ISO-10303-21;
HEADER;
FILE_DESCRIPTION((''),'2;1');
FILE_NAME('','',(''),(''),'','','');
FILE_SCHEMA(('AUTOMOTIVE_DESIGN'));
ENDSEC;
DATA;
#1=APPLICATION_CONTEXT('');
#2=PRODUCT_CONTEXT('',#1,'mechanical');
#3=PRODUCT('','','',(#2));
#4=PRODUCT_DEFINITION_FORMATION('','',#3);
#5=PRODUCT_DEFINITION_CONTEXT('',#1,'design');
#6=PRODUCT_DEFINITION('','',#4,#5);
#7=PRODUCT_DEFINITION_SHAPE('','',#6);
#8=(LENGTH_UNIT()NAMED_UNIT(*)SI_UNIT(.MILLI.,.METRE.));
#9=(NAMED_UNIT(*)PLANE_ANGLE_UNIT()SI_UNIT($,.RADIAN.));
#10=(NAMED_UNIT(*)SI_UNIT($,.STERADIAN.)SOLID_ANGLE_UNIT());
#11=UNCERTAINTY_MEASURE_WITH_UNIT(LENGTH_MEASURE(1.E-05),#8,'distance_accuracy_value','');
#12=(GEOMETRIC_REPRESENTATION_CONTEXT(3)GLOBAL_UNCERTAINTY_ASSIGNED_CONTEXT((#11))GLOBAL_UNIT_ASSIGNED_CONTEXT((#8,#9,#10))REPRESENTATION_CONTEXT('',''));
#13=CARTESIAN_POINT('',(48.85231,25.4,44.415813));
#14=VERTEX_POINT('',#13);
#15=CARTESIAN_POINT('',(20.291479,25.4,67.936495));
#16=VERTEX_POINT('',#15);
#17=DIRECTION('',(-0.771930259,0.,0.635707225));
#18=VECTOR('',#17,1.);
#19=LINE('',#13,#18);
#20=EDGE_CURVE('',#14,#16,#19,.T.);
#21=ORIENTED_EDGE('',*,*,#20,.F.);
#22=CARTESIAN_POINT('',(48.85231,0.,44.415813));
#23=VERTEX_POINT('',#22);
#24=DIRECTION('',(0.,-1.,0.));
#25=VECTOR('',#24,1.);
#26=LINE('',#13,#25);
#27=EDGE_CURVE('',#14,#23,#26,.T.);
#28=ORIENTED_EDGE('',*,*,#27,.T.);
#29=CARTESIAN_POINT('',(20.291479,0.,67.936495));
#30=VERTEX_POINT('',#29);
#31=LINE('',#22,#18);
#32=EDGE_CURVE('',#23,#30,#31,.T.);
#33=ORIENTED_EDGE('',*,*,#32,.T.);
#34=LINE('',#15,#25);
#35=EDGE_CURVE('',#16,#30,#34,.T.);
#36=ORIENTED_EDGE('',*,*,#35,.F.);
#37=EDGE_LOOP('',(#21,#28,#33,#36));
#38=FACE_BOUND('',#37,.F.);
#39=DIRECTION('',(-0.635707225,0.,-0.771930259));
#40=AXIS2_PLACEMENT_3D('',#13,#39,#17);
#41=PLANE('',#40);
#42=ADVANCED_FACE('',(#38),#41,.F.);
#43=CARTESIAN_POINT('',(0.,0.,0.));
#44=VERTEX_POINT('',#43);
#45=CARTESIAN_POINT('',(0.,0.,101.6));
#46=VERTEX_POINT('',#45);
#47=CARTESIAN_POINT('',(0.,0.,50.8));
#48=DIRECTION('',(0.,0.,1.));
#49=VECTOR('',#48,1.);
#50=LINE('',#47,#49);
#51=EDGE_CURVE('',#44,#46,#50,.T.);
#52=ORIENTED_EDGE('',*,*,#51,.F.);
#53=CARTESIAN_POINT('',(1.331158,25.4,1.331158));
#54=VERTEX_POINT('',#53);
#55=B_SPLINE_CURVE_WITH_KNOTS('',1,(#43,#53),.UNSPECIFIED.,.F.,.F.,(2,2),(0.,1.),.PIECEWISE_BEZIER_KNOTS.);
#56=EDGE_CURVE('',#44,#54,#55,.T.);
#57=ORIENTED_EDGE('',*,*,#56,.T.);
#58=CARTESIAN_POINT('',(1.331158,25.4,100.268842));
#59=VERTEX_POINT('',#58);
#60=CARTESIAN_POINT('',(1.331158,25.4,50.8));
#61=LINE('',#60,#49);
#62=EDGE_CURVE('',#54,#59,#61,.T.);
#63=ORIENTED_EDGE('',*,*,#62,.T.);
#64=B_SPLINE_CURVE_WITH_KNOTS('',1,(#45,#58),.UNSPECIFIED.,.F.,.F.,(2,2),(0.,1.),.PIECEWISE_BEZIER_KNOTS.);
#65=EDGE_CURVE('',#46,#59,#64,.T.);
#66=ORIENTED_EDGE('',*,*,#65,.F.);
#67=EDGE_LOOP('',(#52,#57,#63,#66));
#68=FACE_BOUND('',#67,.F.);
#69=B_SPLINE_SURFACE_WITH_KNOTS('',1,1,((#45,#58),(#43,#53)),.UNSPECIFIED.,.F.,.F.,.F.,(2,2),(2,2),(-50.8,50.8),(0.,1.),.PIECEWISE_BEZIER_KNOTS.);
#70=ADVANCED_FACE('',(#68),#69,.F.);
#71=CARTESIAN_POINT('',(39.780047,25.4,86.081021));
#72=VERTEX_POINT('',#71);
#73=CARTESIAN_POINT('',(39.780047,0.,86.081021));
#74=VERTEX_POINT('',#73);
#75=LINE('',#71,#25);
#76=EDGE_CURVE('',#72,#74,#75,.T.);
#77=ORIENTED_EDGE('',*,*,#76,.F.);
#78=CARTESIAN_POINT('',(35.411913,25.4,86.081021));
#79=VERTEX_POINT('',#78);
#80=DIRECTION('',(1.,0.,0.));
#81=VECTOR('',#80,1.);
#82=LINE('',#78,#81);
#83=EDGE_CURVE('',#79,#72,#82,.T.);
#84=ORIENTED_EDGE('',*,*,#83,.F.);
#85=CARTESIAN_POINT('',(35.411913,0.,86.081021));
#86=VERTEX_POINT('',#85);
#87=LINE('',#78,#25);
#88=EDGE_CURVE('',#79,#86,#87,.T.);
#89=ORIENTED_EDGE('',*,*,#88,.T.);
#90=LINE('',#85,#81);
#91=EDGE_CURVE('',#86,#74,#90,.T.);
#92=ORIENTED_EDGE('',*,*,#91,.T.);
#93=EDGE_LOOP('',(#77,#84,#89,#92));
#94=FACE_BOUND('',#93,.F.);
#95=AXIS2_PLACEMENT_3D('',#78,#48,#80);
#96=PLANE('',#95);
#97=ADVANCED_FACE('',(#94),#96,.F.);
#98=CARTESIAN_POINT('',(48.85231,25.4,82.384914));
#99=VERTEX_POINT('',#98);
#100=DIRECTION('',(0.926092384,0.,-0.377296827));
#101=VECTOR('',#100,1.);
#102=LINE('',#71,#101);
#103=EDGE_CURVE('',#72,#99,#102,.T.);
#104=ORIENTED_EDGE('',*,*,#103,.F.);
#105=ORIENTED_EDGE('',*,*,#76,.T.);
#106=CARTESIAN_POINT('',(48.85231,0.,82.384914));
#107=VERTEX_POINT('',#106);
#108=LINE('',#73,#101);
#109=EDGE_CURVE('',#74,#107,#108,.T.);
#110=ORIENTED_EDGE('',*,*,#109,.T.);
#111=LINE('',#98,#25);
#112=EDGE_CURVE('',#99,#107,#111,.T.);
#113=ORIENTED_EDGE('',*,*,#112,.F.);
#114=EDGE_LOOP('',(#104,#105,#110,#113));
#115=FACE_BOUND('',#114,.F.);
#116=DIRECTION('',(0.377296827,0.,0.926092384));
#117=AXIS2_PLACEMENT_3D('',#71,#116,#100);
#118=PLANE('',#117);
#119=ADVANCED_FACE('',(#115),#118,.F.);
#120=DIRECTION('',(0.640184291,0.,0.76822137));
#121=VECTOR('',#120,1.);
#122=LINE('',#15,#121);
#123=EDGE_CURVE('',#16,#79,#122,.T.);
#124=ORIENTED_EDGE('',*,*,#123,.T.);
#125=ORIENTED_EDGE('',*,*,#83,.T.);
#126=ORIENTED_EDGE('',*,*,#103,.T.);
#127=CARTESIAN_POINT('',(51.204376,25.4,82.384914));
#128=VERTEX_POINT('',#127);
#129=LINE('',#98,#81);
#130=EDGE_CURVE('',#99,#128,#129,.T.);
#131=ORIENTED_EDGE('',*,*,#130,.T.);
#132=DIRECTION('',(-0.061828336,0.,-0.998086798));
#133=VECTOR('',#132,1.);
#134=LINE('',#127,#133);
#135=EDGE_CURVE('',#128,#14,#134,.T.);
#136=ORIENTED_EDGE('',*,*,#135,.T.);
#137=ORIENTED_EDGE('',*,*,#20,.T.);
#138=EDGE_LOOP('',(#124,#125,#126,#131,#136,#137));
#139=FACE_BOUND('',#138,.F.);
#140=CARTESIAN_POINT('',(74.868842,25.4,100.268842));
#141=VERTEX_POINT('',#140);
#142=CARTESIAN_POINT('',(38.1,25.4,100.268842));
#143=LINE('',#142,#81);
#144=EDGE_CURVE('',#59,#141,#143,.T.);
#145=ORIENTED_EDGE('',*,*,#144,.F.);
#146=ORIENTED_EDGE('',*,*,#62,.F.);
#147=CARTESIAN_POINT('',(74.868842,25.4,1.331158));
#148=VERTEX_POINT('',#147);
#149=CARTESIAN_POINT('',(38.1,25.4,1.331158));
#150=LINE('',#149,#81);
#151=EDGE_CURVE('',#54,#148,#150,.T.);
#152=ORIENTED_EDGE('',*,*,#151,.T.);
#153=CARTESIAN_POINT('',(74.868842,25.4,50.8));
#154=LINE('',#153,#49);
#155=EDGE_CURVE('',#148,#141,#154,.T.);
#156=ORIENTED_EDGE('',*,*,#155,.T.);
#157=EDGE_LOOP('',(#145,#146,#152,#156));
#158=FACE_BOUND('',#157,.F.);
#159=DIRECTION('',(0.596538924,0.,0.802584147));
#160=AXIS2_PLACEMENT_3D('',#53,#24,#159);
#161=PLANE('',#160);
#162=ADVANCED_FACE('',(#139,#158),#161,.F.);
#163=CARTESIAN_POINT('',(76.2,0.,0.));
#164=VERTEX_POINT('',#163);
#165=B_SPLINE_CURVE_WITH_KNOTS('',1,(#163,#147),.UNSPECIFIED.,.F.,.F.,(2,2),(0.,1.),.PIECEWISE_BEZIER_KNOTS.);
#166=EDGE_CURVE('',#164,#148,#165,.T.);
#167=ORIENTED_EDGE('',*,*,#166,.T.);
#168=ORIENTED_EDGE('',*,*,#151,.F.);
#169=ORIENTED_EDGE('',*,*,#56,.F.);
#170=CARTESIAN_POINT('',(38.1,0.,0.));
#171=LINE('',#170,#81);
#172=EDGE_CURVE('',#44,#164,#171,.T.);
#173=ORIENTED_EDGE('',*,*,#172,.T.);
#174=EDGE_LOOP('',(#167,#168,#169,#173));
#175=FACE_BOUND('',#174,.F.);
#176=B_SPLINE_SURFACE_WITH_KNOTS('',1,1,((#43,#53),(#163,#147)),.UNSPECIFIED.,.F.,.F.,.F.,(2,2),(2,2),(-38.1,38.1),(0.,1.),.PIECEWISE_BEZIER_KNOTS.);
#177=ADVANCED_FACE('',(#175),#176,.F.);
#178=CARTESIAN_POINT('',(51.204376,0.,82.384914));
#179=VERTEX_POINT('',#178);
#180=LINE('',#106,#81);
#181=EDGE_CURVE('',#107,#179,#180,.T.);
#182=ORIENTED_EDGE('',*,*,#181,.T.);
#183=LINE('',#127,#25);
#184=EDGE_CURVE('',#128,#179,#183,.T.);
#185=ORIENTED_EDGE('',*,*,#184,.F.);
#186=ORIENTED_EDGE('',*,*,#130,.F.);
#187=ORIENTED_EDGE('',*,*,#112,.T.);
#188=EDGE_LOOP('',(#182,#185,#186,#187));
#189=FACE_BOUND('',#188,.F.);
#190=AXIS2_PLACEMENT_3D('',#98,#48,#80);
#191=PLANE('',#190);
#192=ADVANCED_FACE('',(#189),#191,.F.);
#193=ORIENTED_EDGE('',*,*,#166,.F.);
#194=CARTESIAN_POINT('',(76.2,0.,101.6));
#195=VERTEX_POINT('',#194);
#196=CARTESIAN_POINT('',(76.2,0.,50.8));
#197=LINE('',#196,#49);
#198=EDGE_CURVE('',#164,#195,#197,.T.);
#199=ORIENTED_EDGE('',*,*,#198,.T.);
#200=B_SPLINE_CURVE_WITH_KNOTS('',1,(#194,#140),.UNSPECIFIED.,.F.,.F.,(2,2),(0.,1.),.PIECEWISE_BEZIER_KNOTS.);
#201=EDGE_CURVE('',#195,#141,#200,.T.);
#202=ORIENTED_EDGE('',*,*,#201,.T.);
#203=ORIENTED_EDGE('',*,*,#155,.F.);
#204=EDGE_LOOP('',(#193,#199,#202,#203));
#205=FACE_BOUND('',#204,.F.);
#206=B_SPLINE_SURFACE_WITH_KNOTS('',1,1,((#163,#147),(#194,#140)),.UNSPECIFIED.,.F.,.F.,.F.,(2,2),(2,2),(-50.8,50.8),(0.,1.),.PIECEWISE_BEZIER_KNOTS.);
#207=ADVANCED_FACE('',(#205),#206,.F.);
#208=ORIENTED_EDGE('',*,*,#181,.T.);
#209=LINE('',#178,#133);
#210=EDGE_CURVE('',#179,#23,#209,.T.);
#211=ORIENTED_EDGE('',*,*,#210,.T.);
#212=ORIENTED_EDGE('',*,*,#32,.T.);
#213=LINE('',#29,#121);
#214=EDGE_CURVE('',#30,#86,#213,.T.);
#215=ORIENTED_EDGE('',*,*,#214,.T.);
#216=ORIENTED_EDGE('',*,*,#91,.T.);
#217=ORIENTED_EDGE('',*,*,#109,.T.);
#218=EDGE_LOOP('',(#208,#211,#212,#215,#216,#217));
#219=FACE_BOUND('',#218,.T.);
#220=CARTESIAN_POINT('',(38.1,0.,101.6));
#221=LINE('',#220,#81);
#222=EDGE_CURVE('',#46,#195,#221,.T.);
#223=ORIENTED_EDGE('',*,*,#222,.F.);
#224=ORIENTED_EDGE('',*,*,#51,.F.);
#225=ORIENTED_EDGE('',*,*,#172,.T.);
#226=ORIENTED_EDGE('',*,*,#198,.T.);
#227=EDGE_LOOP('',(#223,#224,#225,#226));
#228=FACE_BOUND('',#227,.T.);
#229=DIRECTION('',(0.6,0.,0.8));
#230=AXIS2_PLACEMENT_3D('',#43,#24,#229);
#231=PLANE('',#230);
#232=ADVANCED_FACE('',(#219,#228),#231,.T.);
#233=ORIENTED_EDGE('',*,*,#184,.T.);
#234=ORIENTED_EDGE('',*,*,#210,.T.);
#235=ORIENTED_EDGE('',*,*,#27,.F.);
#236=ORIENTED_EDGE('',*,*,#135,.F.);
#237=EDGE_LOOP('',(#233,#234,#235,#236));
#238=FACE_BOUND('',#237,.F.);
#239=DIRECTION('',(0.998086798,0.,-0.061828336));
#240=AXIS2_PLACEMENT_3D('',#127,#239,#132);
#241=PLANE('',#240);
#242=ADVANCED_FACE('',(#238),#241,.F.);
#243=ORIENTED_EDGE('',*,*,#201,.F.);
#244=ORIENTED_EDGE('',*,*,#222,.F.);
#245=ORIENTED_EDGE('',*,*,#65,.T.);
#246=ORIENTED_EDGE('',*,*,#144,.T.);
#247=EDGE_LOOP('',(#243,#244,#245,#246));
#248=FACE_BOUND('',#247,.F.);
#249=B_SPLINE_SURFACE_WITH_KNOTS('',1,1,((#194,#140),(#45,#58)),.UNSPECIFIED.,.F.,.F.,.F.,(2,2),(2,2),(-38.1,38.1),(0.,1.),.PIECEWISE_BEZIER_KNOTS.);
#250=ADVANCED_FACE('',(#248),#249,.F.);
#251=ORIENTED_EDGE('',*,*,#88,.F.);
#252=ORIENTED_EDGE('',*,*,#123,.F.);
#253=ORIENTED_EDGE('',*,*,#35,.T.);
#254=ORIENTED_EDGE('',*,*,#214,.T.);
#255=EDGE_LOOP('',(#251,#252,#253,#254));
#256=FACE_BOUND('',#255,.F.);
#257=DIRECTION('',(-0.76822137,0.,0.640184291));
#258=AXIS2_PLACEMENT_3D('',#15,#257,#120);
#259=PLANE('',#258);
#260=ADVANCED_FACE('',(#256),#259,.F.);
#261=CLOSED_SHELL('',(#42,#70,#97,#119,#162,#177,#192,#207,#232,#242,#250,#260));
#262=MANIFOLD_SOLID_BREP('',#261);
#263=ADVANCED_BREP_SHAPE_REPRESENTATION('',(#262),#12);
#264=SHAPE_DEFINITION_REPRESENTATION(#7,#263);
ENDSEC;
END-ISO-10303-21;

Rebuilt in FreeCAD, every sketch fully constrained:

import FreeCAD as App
import Part
import Sketcher

V = App.Vector
Q = App.Units.Quantity

doc = App.newDocument("Part")
body = doc.addObject("PartDesign::Body", "Body")

sketch1 = body.newObject("Sketcher::SketchObject", "Sketch")
sketch1.AttachmentSupport = (doc.getObject("XZ_Plane"), [""])
sketch1.MapMode = "FlatFace"
sketch1.addGeometry(Part.LineSegment(V(0, 102, 0), V(0, 0, 0)), False)
sketch1.addGeometry(Part.LineSegment(V(0, 0, 0), V(76, 0, 0)), False)
sketch1.addGeometry(Part.LineSegment(V(76, 0, 0), V(76, 102, 0)), False)
sketch1.addGeometry(Part.LineSegment(V(76, 102, 0), V(0, 102, 0)), False)
sketch1.addConstraint(Sketcher.Constraint("Coincident", 0, 2, 1, 1))
sketch1.addConstraint(Sketcher.Constraint("Coincident", 1, 2, 2, 1))
sketch1.addConstraint(Sketcher.Constraint("Coincident", 2, 2, 3, 1))
sketch1.addConstraint(Sketcher.Constraint("Coincident", 3, 2, 0, 1))
sketch1.addConstraint(Sketcher.Constraint("Vertical", 0))
sketch1.addConstraint(Sketcher.Constraint("Horizontal", 1))
sketch1.addConstraint(Sketcher.Constraint("Vertical", 2))
sketch1.addConstraint(Sketcher.Constraint("Horizontal", 3))
sketch1.addConstraint(Sketcher.Constraint("Coincident", 0, 2, -1, 1))
sketch1.addConstraint(Sketcher.Constraint("DistanceX", 1, 1, 1, 2, Q("3 in")))
sketch1.addConstraint(Sketcher.Constraint("DistanceY", 0, 2, 0, 1, Q("4 in")))
pad1 = body.newObject("PartDesign::Pad", "Pad")
pad1.Profile = sketch1
pad1.Length = Q("1 in")
pad1.Reversed = True
pad1.TaperAngle = -3

sketch2 = body.newObject("Sketcher::SketchObject", "Sketch001")
sketch2.AttachmentSupport = (doc.getObject("XZ_Plane"), [""])
sketch2.MapMode = "FlatFace"
sketch2.AttachmentOffset = App.Placement(V(0, 0, -1 * 25.4), App.Rotation())
sketch2.addGeometry(Part.LineSegment(V(51.2, 82.4, 0), V(48.9, 44.4, 0)), False)
sketch2.addGeometry(Part.LineSegment(V(48.9, 44.4, 0), V(20.3, 67.9, 0)), False)
sketch2.addGeometry(Part.LineSegment(V(20.3, 67.9, 0), V(35.4, 86.1, 0)), False)
sketch2.addGeometry(Part.LineSegment(V(35.4, 86.1, 0), V(39.8, 86.1, 0)), False)
sketch2.addGeometry(Part.LineSegment(V(39.8, 86.1, 0), V(48.9, 82.4, 0)), False)
sketch2.addGeometry(Part.LineSegment(V(48.9, 82.4, 0), V(51.2, 82.4, 0)), False)
sketch2.addConstraint(Sketcher.Constraint("Coincident", 0, 2, 1, 1))
sketch2.addConstraint(Sketcher.Constraint("Coincident", 1, 2, 2, 1))
sketch2.addConstraint(Sketcher.Constraint("Coincident", 2, 2, 3, 1))
sketch2.addConstraint(Sketcher.Constraint("Coincident", 3, 2, 4, 1))
sketch2.addConstraint(Sketcher.Constraint("Coincident", 4, 2, 5, 1))
sketch2.addConstraint(Sketcher.Constraint("Coincident", 5, 2, 0, 1))
sketch2.addConstraint(Sketcher.Constraint("Horizontal", 3))
sketch2.addConstraint(Sketcher.Constraint("Horizontal", 5))
sketch2.addConstraint(Sketcher.Constraint("Vertical", 0, 2, 4, 2))
sketch2.addConstraint(Sketcher.Constraint("DistanceY", 0, 2, 4, 2, 37.969101))
sketch2.addConstraint(Sketcher.Constraint("DistanceX", 3, 1, 3, 2, 4.368134))
sketch2.addConstraint(Sketcher.Constraint("DistanceX", 5, 1, 5, 2, 2.352066))
sketch2.addConstraint(Sketcher.Constraint("DistanceX", -1, 1, 0, 2, 48.85231))
sketch2.addConstraint(Sketcher.Constraint("DistanceX", -1, 1, 1, 2, 20.291479))
sketch2.addConstraint(Sketcher.Constraint("DistanceY", -1, 1, 2, 2, 86.081021))
sketch2.addConstraint(Sketcher.Constraint("DistanceY", 1, 2, 4, 2, 14.448419))
sketch2.addConstraint(Sketcher.Constraint("DistanceX", 3, 2, 5, 2, 11.424329))
sketch2.addConstraint(Sketcher.Constraint("Distance", 2, 23.618876))
pocket1 = body.newObject("PartDesign::Pocket", "Pocket")
pocket1.Profile = sketch2
pocket1.Type = "ThroughAll"
pocket1.Reversed = True

doc.recompute()
